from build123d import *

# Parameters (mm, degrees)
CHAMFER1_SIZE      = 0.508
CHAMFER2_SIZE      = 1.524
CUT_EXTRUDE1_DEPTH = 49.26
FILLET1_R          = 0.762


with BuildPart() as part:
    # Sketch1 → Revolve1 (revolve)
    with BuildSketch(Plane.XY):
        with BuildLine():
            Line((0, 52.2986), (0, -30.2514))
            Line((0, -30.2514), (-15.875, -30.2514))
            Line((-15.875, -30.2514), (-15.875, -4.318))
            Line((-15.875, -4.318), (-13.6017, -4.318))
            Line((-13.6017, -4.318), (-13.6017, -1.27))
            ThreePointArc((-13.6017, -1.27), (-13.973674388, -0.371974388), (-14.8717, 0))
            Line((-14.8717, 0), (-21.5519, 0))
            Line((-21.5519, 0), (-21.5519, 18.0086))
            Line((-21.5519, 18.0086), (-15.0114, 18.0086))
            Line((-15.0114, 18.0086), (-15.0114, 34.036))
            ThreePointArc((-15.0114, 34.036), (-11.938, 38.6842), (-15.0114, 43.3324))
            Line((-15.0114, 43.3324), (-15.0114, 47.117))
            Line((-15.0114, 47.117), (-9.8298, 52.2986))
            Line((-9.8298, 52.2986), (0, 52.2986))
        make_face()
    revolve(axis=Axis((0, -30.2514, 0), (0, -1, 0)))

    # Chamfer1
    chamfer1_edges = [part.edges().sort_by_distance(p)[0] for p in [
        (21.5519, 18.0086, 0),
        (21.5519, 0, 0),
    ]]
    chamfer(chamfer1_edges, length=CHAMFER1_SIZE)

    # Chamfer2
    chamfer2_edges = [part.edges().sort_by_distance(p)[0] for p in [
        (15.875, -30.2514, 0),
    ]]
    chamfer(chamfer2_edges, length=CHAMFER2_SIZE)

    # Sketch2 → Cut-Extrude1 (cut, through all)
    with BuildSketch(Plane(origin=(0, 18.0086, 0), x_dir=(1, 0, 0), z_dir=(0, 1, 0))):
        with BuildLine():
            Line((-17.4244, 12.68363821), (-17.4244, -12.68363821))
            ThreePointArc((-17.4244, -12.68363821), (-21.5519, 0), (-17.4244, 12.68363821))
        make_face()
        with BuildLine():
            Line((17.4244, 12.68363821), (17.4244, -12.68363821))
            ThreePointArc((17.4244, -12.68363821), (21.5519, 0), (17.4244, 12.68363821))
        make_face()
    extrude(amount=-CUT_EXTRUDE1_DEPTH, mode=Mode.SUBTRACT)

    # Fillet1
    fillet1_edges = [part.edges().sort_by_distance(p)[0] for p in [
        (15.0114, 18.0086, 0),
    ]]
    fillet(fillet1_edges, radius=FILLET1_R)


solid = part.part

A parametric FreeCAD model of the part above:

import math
import FreeCAD as App
import Part
import Sketcher
Q = App.Units.Quantity


def edges_at(feature, points):
    """Names of the edges that pass closest to the given points."""
    edges = feature.Shape.Edges
    near = lambda p: min(range(len(edges)), key=lambda i: edges[i].distToShape(Part.Vertex(*p))[0])
    return sorted({f"Edge{near(p) + 1}" for p in points})

doc = App.newDocument("Part")
body = doc.addObject("PartDesign::Body", "Body")

# Sketch on XY plane
sketch1 = body.newObject("Sketcher::SketchObject", "Sketch")
sketch1.AttachmentSupport = (doc.getObject("XY_Plane"), [""])
sketch1.MapMode = "FlatFace"
sketch1.addGeometry(Part.LineSegment(App.Vector(0, -30.3, 0), App.Vector(0, 52.3, 0)), False)
sketch1.addGeometry(Part.LineSegment(App.Vector(0, 52.3, 0), App.Vector(-9.8, 52.3, 0)), False)
sketch1.addGeometry(Part.LineSegment(App.Vector(-9.8, 52.3, 0), App.Vector(-15, 47.1, 0)), False)
sketch1.addGeometry(Part.LineSegment(App.Vector(-15, 47.1, 0), App.Vector(-15, 43.3, 0)), False)
sketch1.addGeometry(Part.ArcOfCircle(Part.Circle(App.Vector(-17, 38.7, 0), App.Vector(0, 0, 1), 5.1), math.radians(-67), math.radians(67)), False)
sketch1.addGeometry(Part.LineSegment(App.Vector(-15, 34, 0), App.Vector(-15, 18, 0)), False)
sketch1.addGeometry(Part.LineSegment(App.Vector(-15, 18, 0), App.Vector(-21.6, 18, 0)), False)
sketch1.addGeometry(Part.LineSegment(App.Vector(-21.6, 18, 0), App.Vector(-21.6, 0, 0)), False)
sketch1.addGeometry(Part.LineSegment(App.Vector(-21.6, 0, 0), App.Vector(-14.9, 0, 0)), False)
sketch1.addGeometry(Part.ArcOfCircle(Part.Circle(App.Vector(-14.9, -1.3, 0), App.Vector(0, 0, 1), 1.3), math.radians(0), math.radians(90)), False)
sketch1.addGeometry(Part.LineSegment(App.Vector(-13.6, -1.3, 0), App.Vector(-13.6, -4.3, 0)), False)
sketch1.addGeometry(Part.LineSegment(App.Vector(-13.6, -4.3, 0), App.Vector(-15.9, -4.3, 0)), False)
sketch1.addGeometry(Part.LineSegment(App.Vector(-15.9, -4.3, 0), App.Vector(-15.9, -30.3, 0)), False)
sketch1.addGeometry(Part.LineSegment(App.Vector(-15.9, -30.3, 0), App.Vector(0, -30.3, 0)), False)
sketch1.addConstraint(Sketcher.Constraint("Coincident", 0, 2, 1, 1))
sketch1.addConstraint(Sketcher.Constraint("Coincident", 1, 2, 2, 1))
sketch1.addConstraint(Sketcher.Constraint("Coincident", 2, 2, 3, 1))
sketch1.addConstraint(Sketcher.Constraint("Coincident", 3, 2, 4, 2))
sketch1.addConstraint(Sketcher.Constraint("Coincident", 4, 1, 5, 1))
sketch1.addConstraint(Sketcher.Constraint("Coincident", 5, 2, 6, 1))
sketch1.addConstraint(Sketcher.Constraint("Coincident", 6, 2, 7, 1))
sketch1.addConstraint(Sketcher.Constraint("Coincident", 7, 2, 8, 1))
sketch1.addConstraint(Sketcher.Constraint("Tangent", 8, 2, 9, 2))
sketch1.addConstraint(Sketcher.Constraint("Tangent", 9, 1, 10, 1))
sketch1.addConstraint(Sketcher.Constraint("Coincident", 10, 2, 11, 1))
sketch1.addConstraint(Sketcher.Constraint("Coincident", 11, 2, 12, 1))
sketch1.addConstraint(Sketcher.Constraint("Coincident", 12, 2, 13, 1))
sketch1.addConstraint(Sketcher.Constraint("Coincident", 13, 2, 0, 1))
sketch1.addConstraint(Sketcher.Constraint("Vertical", 0))
sketch1.addConstraint(Sketcher.Constraint("Horizontal", 1))
sketch1.addConstraint(Sketcher.Constraint("Vertical", 3))
sketch1.addConstraint(Sketcher.Constraint("Vertical", 5))
sketch1.addConstraint(Sketcher.Constraint("Horizontal", 6))
sketch1.addConstraint(Sketcher.Constraint("Vertical", 7))
sketch1.addConstraint(Sketcher.Constraint("Horizontal", 8))
sketch1.addConstraint(Sketcher.Constraint("Vertical", 10))
sketch1.addConstraint(Sketcher.Constraint("Horizontal", 11))
sketch1.addConstraint(Sketcher.Constraint("Vertical", 12))
sketch1.addConstraint(Sketcher.Constraint("Horizontal", 13))
sketch1.addConstraint(Sketcher.Constraint("PointOnObject", 0, 2, -2))
sketch1.addConstraint(Sketcher.Constraint("PointOnObject", 7, 2, -1))
sketch1.addConstraint(Sketcher.Constraint("Vertical", 3, 2, 4, 1))
sketch1.addConstraint(Sketcher.Constraint("Radius", 9, Q("0.05 in")))
sketch1.addConstraint(Sketcher.Constraint("Angle", 2, Q("-135 deg")))
sketch1.addConstraint(Sketcher.Constraint("DistanceY", 0, 1, 0, 2, Q("3.25 in")))
sketch1.addConstraint(Sketcher.Constraint("DistanceY", 10, 2, 10, 1, Q("0.12 in")))
sketch1.addConstraint(Sketcher.Constraint("DistanceX", 1, 2, 1, 1, Q("0.387 in")))
sketch1.addConstraint(Sketcher.Constraint("DistanceX", 8, 1, 8, 2, Q("0.263 in")))
sketch1.addConstraint(Sketcher.Constraint("DistanceX", 13, 1, 13, 2, Q("0.625 in")))
sketch1.addConstraint(Sketcher.Constraint("DistanceY", 3, 2, 3, 1, Q("0.149 in")))
sketch1.addConstraint(Sketcher.Constraint("DistanceY", 5, 2, 5, 1, Q("0.631 in")))
sketch1.addConstraint(Sketcher.Constraint("DistanceY", 7, 2, 7, 1, Q("0.709 in")))
sketch1.addConstraint(Sketcher.Constraint("DistanceY", 12, 2, 12, 1, Q("1.021 in")))
sketch1.addConstraint(Sketcher.Constraint("DistanceX", 6, 2, 6, 1, Q("0.2575 in")))
sketch1.addConstraint(Sketcher.Constraint("DistanceX", 11, 2, 11, 1, Q("0.0895 in")))
sketch1.addConstraint(Sketcher.Constraint("Radius", 4, 5.051661))
revolution = body.newObject("PartDesign::Revolution", "Revolution")
revolution.Profile = sketch1
revolution.ReferenceAxis = (sketch1, ["V_Axis"])
revolution.Angle = 360
doc.recompute()

chamfer = body.newObject("PartDesign::Chamfer", "Chamfer")
chamfer.Base = (revolution, edges_at(revolution, [(21.552, 18.009, 0), (21.552, 0, 0)]))
chamfer.Size = Q("0.02 in")
doc.recompute()

chamfer2 = body.newObject("PartDesign::Chamfer", "Chamfer001")
chamfer2.Base = (chamfer, edges_at(chamfer, [(15.875, -30.251, 0)]))
chamfer2.Size = Q("0.06 in")

# Sketch on XZ plane
sketch2 = body.newObject("Sketcher::SketchObject", "Sketch001")
sketch2.AttachmentSupport = (doc.getObject("XZ_Plane"), [""])
sketch2.MapMode = "FlatFace"
sketch2.AttachmentOffset = App.Placement(App.Vector(0, 0, -0.709 * 25.4), App.Rotation())
sketch2.addGeometry(Part.LineSegment(App.Vector(-17, 13, 0), App.Vector(-17, -13, 0)), False)
sketch2.addGeometry(Part.ArcOfCircle(Part.Circle(App.Vector(0, 0, 0), App.Vector(0, 0, 1), 22), math.radians(144), math.radians(216)), False)
sketch2.addGeometry(Part.LineSegment(App.Vector(17, -13, 0), App.Vector(17, 13, 0)), False)
sketch2.addGeometry(Part.ArcOfCircle(Part.Circle(App.Vector(0, 0, 0), App.Vector(0, 0, 1), 22), math.radians(-36), math.radians(36)), False)
sketch2.addConstraint(Sketcher.Constraint("Coincident", 0, 1, 1, 1))
sketch2.addConstraint(Sketcher.Constraint("Coincident", 1, 2, 0, 2))
sketch2.addConstraint(Sketcher.Constraint("Coincident", 2, 1, 3, 1))
sketch2.addConstraint(Sketcher.Constraint("Coincident", 3, 2, 2, 2))
sketch2.addConstraint(Sketcher.Constraint("Vertical", 0))
sketch2.addConstraint(Sketcher.Constraint("Vertical", 2))
sketch2.addConstraint(Sketcher.Constraint("Coincident", 1, 3, -1, 1))
sketch2.addConstraint(Sketcher.Constraint("Coincident", 3, 3, -1, 1))
sketch2.addConstraint(Sketcher.Constraint("Equal", 1, 3))
sketch2.addConstraint(Sketcher.Constraint("Horizontal", 1, 2, 2, 1))
sketch2.addConstraint(Sketcher.Constraint("Radius", 1, Q("0.8485 in")))
sketch2.addConstraint(Sketcher.Constraint("DistanceX", 0, 1, -1, 1, Q("0.686 in")))
pocket1 = body.newObject("PartDesign::Pocket", "Pocket")
pocket1.Profile = sketch2
pocket1.Type = "ThroughAll"
pocket1.Reversed = True
doc.recompute()

fillet = body.newObject("PartDesign::Fillet", "Fillet")
fillet.Base = (pocket1, edges_at(pocket1, [(15.011, 18.009, 0)]))
fillet.Radius = Q("0.03 in")

doc.recompute()
